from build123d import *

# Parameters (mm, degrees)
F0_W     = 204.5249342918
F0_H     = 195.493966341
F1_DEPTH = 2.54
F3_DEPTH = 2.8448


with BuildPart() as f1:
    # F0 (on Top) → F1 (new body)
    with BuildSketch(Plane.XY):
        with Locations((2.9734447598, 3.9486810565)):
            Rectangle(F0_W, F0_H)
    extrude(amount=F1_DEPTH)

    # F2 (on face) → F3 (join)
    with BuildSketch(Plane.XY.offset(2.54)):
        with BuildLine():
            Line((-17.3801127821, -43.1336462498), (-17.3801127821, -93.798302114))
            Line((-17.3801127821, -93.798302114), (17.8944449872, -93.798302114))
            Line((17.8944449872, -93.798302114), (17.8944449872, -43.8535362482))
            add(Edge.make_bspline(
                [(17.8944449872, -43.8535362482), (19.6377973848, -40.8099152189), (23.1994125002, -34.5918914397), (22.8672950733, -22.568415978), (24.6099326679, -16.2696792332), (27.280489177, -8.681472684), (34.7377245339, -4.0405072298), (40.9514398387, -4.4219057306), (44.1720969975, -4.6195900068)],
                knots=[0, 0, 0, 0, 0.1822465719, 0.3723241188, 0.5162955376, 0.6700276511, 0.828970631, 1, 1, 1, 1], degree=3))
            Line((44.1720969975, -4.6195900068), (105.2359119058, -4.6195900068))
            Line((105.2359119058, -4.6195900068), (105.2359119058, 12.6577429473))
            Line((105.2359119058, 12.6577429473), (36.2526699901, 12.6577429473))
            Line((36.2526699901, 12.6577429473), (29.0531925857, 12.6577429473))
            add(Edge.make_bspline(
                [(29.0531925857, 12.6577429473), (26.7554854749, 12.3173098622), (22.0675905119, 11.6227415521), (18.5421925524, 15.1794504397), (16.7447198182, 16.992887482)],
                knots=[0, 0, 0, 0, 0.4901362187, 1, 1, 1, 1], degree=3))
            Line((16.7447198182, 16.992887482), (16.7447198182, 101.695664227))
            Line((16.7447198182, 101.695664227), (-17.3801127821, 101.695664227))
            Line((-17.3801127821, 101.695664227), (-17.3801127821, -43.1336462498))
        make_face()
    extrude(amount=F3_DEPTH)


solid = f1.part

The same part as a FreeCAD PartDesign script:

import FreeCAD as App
import Part
import Sketcher
from FreeCAD import Vector

doc = App.newDocument("Part")
params = doc.addObject("Spreadsheet::Sheet", "Params")
for row, (alias, value) in enumerate([
    ("pad1_length", "0.1 in"),
    ("pad2_length", "0.112 in"),
], start=1):
    params.set(f"A{row}", alias)
    params.set(f"B{row}", "=" + value)
    params.setAlias(f"B{row}", alias)

body = doc.addObject("PartDesign::Body", "Body")

# Sketch on XY plane
sketch1 = body.newObject("Sketcher::SketchObject", "Sketch")
sketch1.AttachmentSupport = (doc.getObject("XY_Plane"), [""])
sketch1.MapMode = "FlatFace"
sketch1.addGeometry([
    Part.LineSegment(Vector(-99, 102, 0), Vector(-99, -94, 0)),
    Part.LineSegment(Vector(-99, -94, 0), Vector(105, -94, 0)),
    Part.LineSegment(Vector(105, -94, 0), Vector(105, 102, 0)),
    Part.LineSegment(Vector(105, 102, 0), Vector(-99, 102, 0)),
], False)
sketch1.addConstraint([
    Sketcher.Constraint("Coincident", 0, 2, 1, 1),
    Sketcher.Constraint("Coincident", 1, 2, 2, 1),
    Sketcher.Constraint("Coincident", 2, 2, 3, 1),
    Sketcher.Constraint("Coincident", 3, 2, 0, 1),
    Sketcher.Constraint("Vertical", 0),
    Sketcher.Constraint("Horizontal", 1),
    Sketcher.Constraint("Vertical", 2),
    Sketcher.Constraint("Horizontal", 3),
    Sketcher.Constraint("DistanceX", 1, 1, 1, 2, 204.524934),
    Sketcher.Constraint("DistanceY", 0, 2, 0, 1, 195.493966),
    Sketcher.Constraint("DistanceX", -1, 1, 1, 2, 105.235912),
    Sketcher.Constraint("DistanceY", 0, 2, -1, 1, 93.798302),
])
pad1 = body.newObject("PartDesign::Pad", "Pad")
pad1.Profile = sketch1
pad1.setExpression("Length", "Params.pad1_length")

# Sketch on XY plane
sketch2 = body.newObject("Sketcher::SketchObject", "Sketch001")
sketch2.AttachmentSupport = (doc.getObject("XY_Plane"), [""])
sketch2.MapMode = "FlatFace"
sketch2.AttachmentOffset = App.Placement(Vector(0, 0, 0.1 * 25.4), App.Rotation())
sketch2.addGeometry([
    Part.LineSegment(Vector(-17.380113, -93.798302, 0), Vector(17.894445, -93.798302, 0)),  # 0
    Part.LineSegment(Vector(17.894445, -93.798302, 0), Vector(17.894445, -43.853536, 0)),  # 1
    Part.BSplineCurve([Vector(17.894445, -43.853536, 0), Vector(19.637797, -40.809915, 0), Vector(23.199413, -34.591891, 0), Vector(22.867295, -22.568416, 0), Vector(24.609933, -16.269679, 0), Vector(27.280489, -8.681473, 0), Vector(34.737725, -4.040507, 0), Vector(40.95144, -4.421906, 0), Vector(44.172097, -4.61959, 0)], [4, 1, 1, 1, 1, 1, 4], [0, 0.182246572, 0.372324119, 0.516295538, 0.670027651, 0.828970631, 1], False, 3, [1, 1, 1, 1, 1, 1, 1, 1, 1], False),  # 2
    Part.LineSegment(Vector(44.172097, -4.61959, 0), Vector(105.235912, -4.61959, 0)),  # 3
    Part.LineSegment(Vector(105.235912, -4.61959, 0), Vector(105.235912, 12.657743, 0)),  # 4
    Part.LineSegment(Vector(105.235912, 12.657743, 0), Vector(29.053193, 12.657743, 0)),  # 5
    Part.BSplineCurve([Vector(29.053193, 12.657743, 0), Vector(26.755485, 12.31731, 0), Vector(22.067591, 11.622742, 0), Vector(18.542193, 15.17945, 0), Vector(16.74472, 16.992887, 0)], [4, 1, 4], [0, 0.490136219, 1], False, 3, [1, 1, 1, 1, 1], False),  # 6
    Part.LineSegment(Vector(16.74472, 16.992887, 0), Vector(16.74472, 101.695664, 0)),  # 7
    Part.LineSegment(Vector(16.74472, 101.695664, 0), Vector(-17.380113, 101.695664, 0)),  # 8
    Part.LineSegment(Vector(-17.380113, 101.695664, 0), Vector(-17.380113, -93.798302, 0)),  # 9
], False)
sketch2.addConstraint([
    Sketcher.Constraint("Block", 2),
    Sketcher.Constraint("Block", 6),
    Sketcher.Constraint("Coincident", 0, 2, 1, 1),
    Sketcher.Constraint("Coincident", 1, 2, 2, 1),
    Sketcher.Constraint("Coincident", 2, 2, 3, 1),
    Sketcher.Constraint("Coincident", 3, 2, 4, 1),
    Sketcher.Constraint("Coincident", 4, 2, 5, 1),
    Sketcher.Constraint("Coincident", 5, 2, 6, 1),
    Sketcher.Constraint("Coincident", 6, 2, 7, 1),
    Sketcher.Constraint("Coincident", 7, 2, 8, 1),
    Sketcher.Constraint("Coincident", 8, 2, 9, 1),
    Sketcher.Constraint("Coincident", 9, 2, 0, 1),
    Sketcher.Constraint("Horizontal", 0),
    Sketcher.Constraint("Vertical", 1),
    Sketcher.Constraint("Horizontal", 3),
    Sketcher.Constraint("Vertical", 4),
    Sketcher.Constraint("Horizontal", 5),
    Sketcher.Constraint("Vertical", 7),
    Sketcher.Constraint("Horizontal", 8),
    Sketcher.Constraint("Vertical", 9),
    Sketcher.Constraint("DistanceX", 5, 2, 5, 1, 76.182719),
    Sketcher.Constraint("DistanceY", 1, 2, 7, 2, 145.5492),
    Sketcher.Constraint("DistanceX", 0, 1, 0, 2, 35.274558),
    Sketcher.Constraint("DistanceY", 1, 1, 1, 2, 49.944766),
])
pad2 = body.newObject("PartDesign::Pad", "Pad001")
pad2.Profile = sketch2
pad2.setExpression("Length", "Params.pad2_length")

doc.recompute()
